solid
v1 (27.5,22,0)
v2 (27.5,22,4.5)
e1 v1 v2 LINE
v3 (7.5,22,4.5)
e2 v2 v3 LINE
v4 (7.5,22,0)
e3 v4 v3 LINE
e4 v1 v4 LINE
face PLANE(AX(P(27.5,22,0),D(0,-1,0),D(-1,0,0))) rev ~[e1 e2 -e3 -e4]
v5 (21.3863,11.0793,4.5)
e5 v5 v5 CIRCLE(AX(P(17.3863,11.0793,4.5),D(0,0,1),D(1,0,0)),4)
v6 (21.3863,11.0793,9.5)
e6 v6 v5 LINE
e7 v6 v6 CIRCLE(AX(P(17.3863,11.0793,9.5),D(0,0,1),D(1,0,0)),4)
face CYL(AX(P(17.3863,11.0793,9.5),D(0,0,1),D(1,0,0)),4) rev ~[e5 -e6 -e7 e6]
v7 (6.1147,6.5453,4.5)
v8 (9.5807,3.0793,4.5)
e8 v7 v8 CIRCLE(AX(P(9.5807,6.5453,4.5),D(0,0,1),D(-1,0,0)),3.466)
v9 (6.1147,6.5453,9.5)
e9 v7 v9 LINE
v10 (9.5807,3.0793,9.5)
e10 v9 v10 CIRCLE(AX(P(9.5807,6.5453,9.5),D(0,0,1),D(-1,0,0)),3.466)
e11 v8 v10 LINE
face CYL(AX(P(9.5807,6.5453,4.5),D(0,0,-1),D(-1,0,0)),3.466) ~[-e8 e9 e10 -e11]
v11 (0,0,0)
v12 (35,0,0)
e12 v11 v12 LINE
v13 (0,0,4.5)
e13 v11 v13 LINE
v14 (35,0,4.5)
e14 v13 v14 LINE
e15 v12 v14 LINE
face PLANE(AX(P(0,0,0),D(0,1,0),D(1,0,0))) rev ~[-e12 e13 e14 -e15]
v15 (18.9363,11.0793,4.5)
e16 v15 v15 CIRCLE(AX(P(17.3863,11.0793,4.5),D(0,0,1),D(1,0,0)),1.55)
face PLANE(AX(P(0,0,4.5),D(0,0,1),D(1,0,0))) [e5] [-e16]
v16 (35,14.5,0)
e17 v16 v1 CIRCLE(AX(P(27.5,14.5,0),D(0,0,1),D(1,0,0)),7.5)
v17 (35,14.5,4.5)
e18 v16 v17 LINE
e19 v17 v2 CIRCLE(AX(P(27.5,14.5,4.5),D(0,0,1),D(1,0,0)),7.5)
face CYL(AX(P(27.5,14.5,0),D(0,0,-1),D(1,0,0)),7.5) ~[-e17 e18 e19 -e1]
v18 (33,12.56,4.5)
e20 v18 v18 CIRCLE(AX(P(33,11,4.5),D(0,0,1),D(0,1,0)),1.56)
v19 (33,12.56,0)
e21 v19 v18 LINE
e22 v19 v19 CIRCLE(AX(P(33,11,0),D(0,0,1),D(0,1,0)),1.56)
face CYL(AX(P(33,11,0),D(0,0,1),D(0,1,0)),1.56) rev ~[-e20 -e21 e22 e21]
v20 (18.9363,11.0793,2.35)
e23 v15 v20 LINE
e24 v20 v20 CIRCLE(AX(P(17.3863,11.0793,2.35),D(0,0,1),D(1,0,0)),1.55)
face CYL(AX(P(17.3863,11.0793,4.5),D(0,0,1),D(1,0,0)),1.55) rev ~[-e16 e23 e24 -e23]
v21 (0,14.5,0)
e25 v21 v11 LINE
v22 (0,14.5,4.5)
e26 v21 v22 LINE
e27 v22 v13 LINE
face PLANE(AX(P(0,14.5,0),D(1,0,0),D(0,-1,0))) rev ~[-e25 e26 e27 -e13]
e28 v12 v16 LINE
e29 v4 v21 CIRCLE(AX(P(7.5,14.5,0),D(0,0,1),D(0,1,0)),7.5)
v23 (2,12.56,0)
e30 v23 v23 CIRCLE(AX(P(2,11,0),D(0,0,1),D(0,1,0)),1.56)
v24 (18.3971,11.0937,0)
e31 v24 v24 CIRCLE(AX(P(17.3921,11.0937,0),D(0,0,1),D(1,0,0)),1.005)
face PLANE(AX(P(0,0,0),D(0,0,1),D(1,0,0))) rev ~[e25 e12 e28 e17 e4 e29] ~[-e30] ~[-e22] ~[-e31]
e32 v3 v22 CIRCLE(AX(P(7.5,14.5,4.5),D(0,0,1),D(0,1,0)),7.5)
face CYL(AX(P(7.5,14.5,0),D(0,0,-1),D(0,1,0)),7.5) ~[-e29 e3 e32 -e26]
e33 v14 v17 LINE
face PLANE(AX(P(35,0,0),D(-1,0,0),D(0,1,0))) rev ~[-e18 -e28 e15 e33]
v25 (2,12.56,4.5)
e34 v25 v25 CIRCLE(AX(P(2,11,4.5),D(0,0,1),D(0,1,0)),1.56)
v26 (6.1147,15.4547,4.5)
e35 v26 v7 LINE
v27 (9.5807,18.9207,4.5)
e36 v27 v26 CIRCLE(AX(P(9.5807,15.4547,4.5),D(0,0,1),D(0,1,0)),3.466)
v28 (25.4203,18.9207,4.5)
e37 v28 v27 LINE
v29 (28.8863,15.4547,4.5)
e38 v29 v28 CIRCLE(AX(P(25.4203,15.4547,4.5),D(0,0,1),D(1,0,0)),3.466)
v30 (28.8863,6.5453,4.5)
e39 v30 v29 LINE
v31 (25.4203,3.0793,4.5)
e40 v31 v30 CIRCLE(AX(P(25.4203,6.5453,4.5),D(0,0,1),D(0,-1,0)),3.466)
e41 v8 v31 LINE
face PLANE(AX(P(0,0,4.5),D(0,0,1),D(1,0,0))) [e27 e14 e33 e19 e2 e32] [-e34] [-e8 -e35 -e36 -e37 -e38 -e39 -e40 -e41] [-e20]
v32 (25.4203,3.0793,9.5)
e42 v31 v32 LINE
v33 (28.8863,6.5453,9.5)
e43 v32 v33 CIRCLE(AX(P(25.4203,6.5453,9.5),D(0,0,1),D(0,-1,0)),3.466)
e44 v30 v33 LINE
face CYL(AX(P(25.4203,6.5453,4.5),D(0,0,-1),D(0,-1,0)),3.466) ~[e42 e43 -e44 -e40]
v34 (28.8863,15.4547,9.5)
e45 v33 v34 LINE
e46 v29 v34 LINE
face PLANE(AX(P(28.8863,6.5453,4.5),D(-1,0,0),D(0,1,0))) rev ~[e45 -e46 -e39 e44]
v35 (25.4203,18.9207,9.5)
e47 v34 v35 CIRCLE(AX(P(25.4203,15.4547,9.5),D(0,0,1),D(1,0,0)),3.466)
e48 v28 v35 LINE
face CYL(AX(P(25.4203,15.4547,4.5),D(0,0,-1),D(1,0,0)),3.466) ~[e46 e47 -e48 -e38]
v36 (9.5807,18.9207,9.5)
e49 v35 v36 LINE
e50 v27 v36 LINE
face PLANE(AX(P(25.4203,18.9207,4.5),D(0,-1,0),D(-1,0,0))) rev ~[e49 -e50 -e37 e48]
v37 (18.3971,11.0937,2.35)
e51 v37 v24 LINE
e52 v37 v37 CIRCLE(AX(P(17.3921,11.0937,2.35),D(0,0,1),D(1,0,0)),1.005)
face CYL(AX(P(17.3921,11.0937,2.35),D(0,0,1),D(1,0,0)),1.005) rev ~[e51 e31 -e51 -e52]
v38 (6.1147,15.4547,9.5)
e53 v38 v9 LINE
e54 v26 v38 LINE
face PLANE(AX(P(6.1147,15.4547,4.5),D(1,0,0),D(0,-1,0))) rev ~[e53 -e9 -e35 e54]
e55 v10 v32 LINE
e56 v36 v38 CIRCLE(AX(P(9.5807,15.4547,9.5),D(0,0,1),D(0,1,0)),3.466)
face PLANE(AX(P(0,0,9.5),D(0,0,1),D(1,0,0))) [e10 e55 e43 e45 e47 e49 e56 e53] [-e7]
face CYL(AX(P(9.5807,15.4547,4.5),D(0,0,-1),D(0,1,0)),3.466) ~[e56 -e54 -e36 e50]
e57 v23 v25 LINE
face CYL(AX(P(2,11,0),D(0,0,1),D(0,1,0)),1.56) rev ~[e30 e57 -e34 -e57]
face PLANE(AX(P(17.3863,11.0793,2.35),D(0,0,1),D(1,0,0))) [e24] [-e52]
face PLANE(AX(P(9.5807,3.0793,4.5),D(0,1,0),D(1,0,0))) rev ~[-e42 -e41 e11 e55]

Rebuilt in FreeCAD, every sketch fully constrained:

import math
import FreeCAD as App
import Part
import Sketcher

doc = App.newDocument("Part")
body = doc.addObject("PartDesign::Body", "Body")

# Sketch on XY plane
sketch1 = doc.addObject("Sketcher::SketchObject", "Sketch")
body.addObject(sketch1)
sketch1.AttachmentSupport = (doc.XY_Plane, [""])
sketch1.MapMode = "FlatFace"
sketch1.addGeometry([
    Part.LineSegment(App.Vector(0, 14.5, 0), App.Vector(0, 0, 0)),  # 0
    Part.LineSegment(App.Vector(0, 0, 0), App.Vector(35, 0, 0)),  # 1
    Part.LineSegment(App.Vector(35, 0, 0), App.Vector(35, 14.5, 0)),  # 2
    Part.ArcOfCircle(Part.Circle(App.Vector(27.5, 14.5, 0), App.Vector(0, 0, 1), 7.5), math.radians(0), math.radians(90)),  # 3
    Part.LineSegment(App.Vector(27.5, 22, 0), App.Vector(7.5, 22, 0)),  # 4
    Part.ArcOfCircle(Part.Circle(App.Vector(7.5, 14.5, 0), App.Vector(0, 0, 1), 7.5), math.radians(90), math.radians(180)),  # 5
], False)
sketch1.addConstraint([
    Sketcher.Constraint("Coincident", 0, 2, 1, 1),
    Sketcher.Constraint("Coincident", 1, 2, 2, 1),
    Sketcher.Constraint("Tangent", 2, 2, 3, 1),
    Sketcher.Constraint("Tangent", 3, 2, 4, 1),
    Sketcher.Constraint("Tangent", 4, 2, 5, 1),
    Sketcher.Constraint("Tangent", 5, 2, 0, 1),
    Sketcher.Constraint("Vertical", 0),
    Sketcher.Constraint("Horizontal", 1),
    Sketcher.Constraint("Vertical", 2),
    Sketcher.Constraint("Horizontal", 4),
    Sketcher.Constraint("Coincident", 0, 2, -1, 1),
    Sketcher.Constraint("Equal", 3, 5),
    Sketcher.Constraint("Radius", 3, 7.5),
    Sketcher.Constraint("DistanceX", 1, 1, 1, 2, 35.0),
    Sketcher.Constraint("DistanceY", -1, 1, 3, 2, 22.0),
])
pad1 = doc.addObject("PartDesign::Pad", "Pad")
body.addObject(pad1)
pad1.Profile = sketch1
pad1.Length = 4.5

# Sketch on XY plane
sketch2 = doc.addObject("Sketcher::SketchObject", "Sketch001")
body.addObject(sketch2)
sketch2.AttachmentSupport = (doc.XY_Plane, [""])
sketch2.MapMode = "FlatFace"
sketch2.AttachmentOffset = App.Placement(App.Vector(0, 0, 4.5), App.Rotation())
sketch2.addGeometry([
    Part.ArcOfCircle(Part.Circle(App.Vector(9.5807, 6.5453, 0), App.Vector(0, 0, 1), 3.466), math.radians(180), math.radians(270)),  # 0
    Part.LineSegment(App.Vector(9.5807, 3.0793, 0), App.Vector(25.4203, 3.0793, 0)),  # 1
    Part.ArcOfCircle(Part.Circle(App.Vector(25.4203, 6.5453, 0), App.Vector(0, 0, 1), 3.466), math.radians(-90), math.radians(0)),  # 2
    Part.LineSegment(App.Vector(28.8863, 6.5453, 0), App.Vector(28.8863, 15.4547, 0)),  # 3
    Part.ArcOfCircle(Part.Circle(App.Vector(25.4203, 15.4547, 0), App.Vector(0, 0, 1), 3.466), math.radians(0), math.radians(90)),  # 4
    Part.LineSegment(App.Vector(25.4203, 18.9207, 0), App.Vector(9.5807, 18.9207, 0)),  # 5
    Part.ArcOfCircle(Part.Circle(App.Vector(9.5807, 15.4547, 0), App.Vector(0, 0, 1), 3.466), math.radians(90), math.radians(180)),  # 6
    Part.LineSegment(App.Vector(6.1147, 15.4547, 0), App.Vector(6.1147, 6.5453, 0)),  # 7
], False)
sketch2.addConstraint([
    Sketcher.Constraint("Tangent", 0, 2, 1, 1),
    Sketcher.Constraint("Tangent", 1, 2, 2, 1),
    Sketcher.Constraint("Tangent", 2, 2, 3, 1),
    Sketcher.Constraint("Tangent", 3, 2, 4, 1),
    Sketcher.Constraint("Tangent", 4, 2, 5, 1),
    Sketcher.Constraint("Tangent", 5, 2, 6, 1),
    Sketcher.Constraint("Tangent", 6, 2, 7, 1),
    Sketcher.Constraint("Tangent", 7, 2, 0, 1),
    Sketcher.Constraint("Horizontal", 1),
    Sketcher.Constraint("Vertical", 3),
    Sketcher.Constraint("Horizontal", 5),
    Sketcher.Constraint("Vertical", 7),
    Sketcher.Constraint("Equal", 0, 2),
    Sketcher.Constraint("Equal", 2, 4),
    Sketcher.Constraint("Equal", 4, 6),
    Sketcher.Constraint("Radius", 0, 3.466),
    Sketcher.Constraint("DistanceY", -1, 1, 0, 2, 3.0793),
    Sketcher.Constraint("DistanceX", -1, 1, 6, 2, 6.1147),
    Sketcher.Constraint("DistanceX", 1, 1, 1, 2, 15.8396),
    Sketcher.Constraint("DistanceY", 3, 1, 3, 2, 8.9094),
])
pad2 = doc.addObject("PartDesign::Pad", "Pad001")
body.addObject(pad2)
pad2.Profile = sketch2
pad2.Length = 5

# Sketch on XY plane
sketch3 = doc.addObject("Sketcher::SketchObject", "Sketch002")
body.addObject(sketch3)
sketch3.AttachmentSupport = (doc.XY_Plane, [""])
sketch3.MapMode = "FlatFace"
sketch3.addGeometry(Part.Circle(App.Vector(2, 11, 0), App.Vector(0, 0, 1), 1.56), False)
sketch3.addConstraint([
    Sketcher.Constraint("Diameter", 0, 3.12),
    Sketcher.Constraint("DistanceX", -1, 1, 0, 3, 2.0),
    Sketcher.Constraint("DistanceY", -1, 1, 0, 3, 11.0),
])
doc.recompute()
hole = doc.addObject("PartDesign::Hole", "Hole")
body.addObject(hole)
hole.Profile = sketch3
hole.ThreadType = "None"
hole.Diameter = 3.12
hole.DepthType = "ThroughAll"
hole.Reversed = True

# Sketch on XY plane
sketch4 = doc.addObject("Sketcher::SketchObject", "Sketch003")
body.addObject(sketch4)
sketch4.AttachmentSupport = (doc.XY_Plane, [""])
sketch4.MapMode = "FlatFace"
sketch4.addGeometry(Part.Circle(App.Vector(33, 11, 0), App.Vector(0, 0, 1), 1.56), False)
sketch4.addConstraint([
    Sketcher.Constraint("Diameter", 0, 3.12),
    Sketcher.Constraint("DistanceX", -1, 1, 0, 3, 33.0),
    Sketcher.Constraint("DistanceY", -1, 1, 0, 3, 11.0),
])
doc.recompute()
hole2 = doc.addObject("PartDesign::Hole", "Hole001")
body.addObject(hole2)
hole2.Profile = sketch4
hole2.ThreadType = "None"
hole2.Diameter = 3.12
hole2.DepthType = "ThroughAll"
hole2.Reversed = True

# Sketch on XY plane
sketch5 = doc.addObject("Sketcher::SketchObject", "Sketch004")
body.addObject(sketch5)
sketch5.AttachmentSupport = (doc.XY_Plane, [""])
sketch5.MapMode = "FlatFace"
sketch5.AttachmentOffset = App.Placement(App.Vector(0, 0, 9.5), App.Rotation())
sketch5.addGeometry(Part.Circle(App.Vector(17.3863, 11.0793, 0), App.Vector(0, 0, 1), 4), False)
sketch5.addConstraint([
    Sketcher.Constraint("Diameter", 0, 8.0),
    Sketcher.Constraint("DistanceX", -1, 1, 0, 3, 17.3863),
    Sketcher.Constraint("DistanceY", -1, 1, 0, 3, 11.0793),
])
pocket1 = doc.addObject("PartDesign::Pocket", "Pocket")
body.addObject(pocket1)
pocket1.Profile = sketch5
pocket1.Length = 5

# Sketch on XY plane
sketch6 = doc.addObject("Sketcher::SketchObject", "Sketch005")
body.addObject(sketch6)
sketch6.AttachmentSupport = (doc.XY_Plane, [""])
sketch6.MapMode = "FlatFace"
sketch6.AttachmentOffset = App.Placement(App.Vector(0, 0, 4.5), App.Rotation())
sketch6.addGeometry(Part.Circle(App.Vector(17.3863, 11.0793, 0), App.Vector(0, 0, 1), 1.55), False)
sketch6.addConstraint([
    Sketcher.Constraint("Diameter", 0, 3.1),
    Sketcher.Constraint("DistanceX", -1, 1, 0, 3, 17.3863),
    Sketcher.Constraint("DistanceY", -1, 1, 0, 3, 11.0793),
])
pocket2 = doc.addObject("PartDesign::Pocket", "Pocket001")
body.addObject(pocket2)
pocket2.Profile = sketch6
pocket2.Length = 2.15

# Sketch on XY plane
sketch7 = doc.addObject("Sketcher::SketchObject", "Sketch006")
body.addObject(sketch7)
sketch7.AttachmentSupport = (doc.XY_Plane, [""])
sketch7.MapMode = "FlatFace"
sketch7.AttachmentOffset = App.Placement(App.Vector(0, 0, 2.35), App.Rotation())
sketch7.addGeometry(Part.Circle(App.Vector(17.3921, 11.0937, 0), App.Vector(0, 0, 1), 1.005), False)
sketch7.addConstraint([
    Sketcher.Constraint("Diameter", 0, 2.01),
    Sketcher.Constraint("DistanceX", -1, 1, 0, 3, 17.392),
    Sketcher.Constraint("DistanceY", -1, 1, 0, 3, 11.0937),
])
pocket3 = doc.addObject("PartDesign::Pocket", "Pocket002")
body.addObject(pocket3)
pocket3.Profile = sketch7
pocket3.Type = "ThroughAll"

doc.recompute()
